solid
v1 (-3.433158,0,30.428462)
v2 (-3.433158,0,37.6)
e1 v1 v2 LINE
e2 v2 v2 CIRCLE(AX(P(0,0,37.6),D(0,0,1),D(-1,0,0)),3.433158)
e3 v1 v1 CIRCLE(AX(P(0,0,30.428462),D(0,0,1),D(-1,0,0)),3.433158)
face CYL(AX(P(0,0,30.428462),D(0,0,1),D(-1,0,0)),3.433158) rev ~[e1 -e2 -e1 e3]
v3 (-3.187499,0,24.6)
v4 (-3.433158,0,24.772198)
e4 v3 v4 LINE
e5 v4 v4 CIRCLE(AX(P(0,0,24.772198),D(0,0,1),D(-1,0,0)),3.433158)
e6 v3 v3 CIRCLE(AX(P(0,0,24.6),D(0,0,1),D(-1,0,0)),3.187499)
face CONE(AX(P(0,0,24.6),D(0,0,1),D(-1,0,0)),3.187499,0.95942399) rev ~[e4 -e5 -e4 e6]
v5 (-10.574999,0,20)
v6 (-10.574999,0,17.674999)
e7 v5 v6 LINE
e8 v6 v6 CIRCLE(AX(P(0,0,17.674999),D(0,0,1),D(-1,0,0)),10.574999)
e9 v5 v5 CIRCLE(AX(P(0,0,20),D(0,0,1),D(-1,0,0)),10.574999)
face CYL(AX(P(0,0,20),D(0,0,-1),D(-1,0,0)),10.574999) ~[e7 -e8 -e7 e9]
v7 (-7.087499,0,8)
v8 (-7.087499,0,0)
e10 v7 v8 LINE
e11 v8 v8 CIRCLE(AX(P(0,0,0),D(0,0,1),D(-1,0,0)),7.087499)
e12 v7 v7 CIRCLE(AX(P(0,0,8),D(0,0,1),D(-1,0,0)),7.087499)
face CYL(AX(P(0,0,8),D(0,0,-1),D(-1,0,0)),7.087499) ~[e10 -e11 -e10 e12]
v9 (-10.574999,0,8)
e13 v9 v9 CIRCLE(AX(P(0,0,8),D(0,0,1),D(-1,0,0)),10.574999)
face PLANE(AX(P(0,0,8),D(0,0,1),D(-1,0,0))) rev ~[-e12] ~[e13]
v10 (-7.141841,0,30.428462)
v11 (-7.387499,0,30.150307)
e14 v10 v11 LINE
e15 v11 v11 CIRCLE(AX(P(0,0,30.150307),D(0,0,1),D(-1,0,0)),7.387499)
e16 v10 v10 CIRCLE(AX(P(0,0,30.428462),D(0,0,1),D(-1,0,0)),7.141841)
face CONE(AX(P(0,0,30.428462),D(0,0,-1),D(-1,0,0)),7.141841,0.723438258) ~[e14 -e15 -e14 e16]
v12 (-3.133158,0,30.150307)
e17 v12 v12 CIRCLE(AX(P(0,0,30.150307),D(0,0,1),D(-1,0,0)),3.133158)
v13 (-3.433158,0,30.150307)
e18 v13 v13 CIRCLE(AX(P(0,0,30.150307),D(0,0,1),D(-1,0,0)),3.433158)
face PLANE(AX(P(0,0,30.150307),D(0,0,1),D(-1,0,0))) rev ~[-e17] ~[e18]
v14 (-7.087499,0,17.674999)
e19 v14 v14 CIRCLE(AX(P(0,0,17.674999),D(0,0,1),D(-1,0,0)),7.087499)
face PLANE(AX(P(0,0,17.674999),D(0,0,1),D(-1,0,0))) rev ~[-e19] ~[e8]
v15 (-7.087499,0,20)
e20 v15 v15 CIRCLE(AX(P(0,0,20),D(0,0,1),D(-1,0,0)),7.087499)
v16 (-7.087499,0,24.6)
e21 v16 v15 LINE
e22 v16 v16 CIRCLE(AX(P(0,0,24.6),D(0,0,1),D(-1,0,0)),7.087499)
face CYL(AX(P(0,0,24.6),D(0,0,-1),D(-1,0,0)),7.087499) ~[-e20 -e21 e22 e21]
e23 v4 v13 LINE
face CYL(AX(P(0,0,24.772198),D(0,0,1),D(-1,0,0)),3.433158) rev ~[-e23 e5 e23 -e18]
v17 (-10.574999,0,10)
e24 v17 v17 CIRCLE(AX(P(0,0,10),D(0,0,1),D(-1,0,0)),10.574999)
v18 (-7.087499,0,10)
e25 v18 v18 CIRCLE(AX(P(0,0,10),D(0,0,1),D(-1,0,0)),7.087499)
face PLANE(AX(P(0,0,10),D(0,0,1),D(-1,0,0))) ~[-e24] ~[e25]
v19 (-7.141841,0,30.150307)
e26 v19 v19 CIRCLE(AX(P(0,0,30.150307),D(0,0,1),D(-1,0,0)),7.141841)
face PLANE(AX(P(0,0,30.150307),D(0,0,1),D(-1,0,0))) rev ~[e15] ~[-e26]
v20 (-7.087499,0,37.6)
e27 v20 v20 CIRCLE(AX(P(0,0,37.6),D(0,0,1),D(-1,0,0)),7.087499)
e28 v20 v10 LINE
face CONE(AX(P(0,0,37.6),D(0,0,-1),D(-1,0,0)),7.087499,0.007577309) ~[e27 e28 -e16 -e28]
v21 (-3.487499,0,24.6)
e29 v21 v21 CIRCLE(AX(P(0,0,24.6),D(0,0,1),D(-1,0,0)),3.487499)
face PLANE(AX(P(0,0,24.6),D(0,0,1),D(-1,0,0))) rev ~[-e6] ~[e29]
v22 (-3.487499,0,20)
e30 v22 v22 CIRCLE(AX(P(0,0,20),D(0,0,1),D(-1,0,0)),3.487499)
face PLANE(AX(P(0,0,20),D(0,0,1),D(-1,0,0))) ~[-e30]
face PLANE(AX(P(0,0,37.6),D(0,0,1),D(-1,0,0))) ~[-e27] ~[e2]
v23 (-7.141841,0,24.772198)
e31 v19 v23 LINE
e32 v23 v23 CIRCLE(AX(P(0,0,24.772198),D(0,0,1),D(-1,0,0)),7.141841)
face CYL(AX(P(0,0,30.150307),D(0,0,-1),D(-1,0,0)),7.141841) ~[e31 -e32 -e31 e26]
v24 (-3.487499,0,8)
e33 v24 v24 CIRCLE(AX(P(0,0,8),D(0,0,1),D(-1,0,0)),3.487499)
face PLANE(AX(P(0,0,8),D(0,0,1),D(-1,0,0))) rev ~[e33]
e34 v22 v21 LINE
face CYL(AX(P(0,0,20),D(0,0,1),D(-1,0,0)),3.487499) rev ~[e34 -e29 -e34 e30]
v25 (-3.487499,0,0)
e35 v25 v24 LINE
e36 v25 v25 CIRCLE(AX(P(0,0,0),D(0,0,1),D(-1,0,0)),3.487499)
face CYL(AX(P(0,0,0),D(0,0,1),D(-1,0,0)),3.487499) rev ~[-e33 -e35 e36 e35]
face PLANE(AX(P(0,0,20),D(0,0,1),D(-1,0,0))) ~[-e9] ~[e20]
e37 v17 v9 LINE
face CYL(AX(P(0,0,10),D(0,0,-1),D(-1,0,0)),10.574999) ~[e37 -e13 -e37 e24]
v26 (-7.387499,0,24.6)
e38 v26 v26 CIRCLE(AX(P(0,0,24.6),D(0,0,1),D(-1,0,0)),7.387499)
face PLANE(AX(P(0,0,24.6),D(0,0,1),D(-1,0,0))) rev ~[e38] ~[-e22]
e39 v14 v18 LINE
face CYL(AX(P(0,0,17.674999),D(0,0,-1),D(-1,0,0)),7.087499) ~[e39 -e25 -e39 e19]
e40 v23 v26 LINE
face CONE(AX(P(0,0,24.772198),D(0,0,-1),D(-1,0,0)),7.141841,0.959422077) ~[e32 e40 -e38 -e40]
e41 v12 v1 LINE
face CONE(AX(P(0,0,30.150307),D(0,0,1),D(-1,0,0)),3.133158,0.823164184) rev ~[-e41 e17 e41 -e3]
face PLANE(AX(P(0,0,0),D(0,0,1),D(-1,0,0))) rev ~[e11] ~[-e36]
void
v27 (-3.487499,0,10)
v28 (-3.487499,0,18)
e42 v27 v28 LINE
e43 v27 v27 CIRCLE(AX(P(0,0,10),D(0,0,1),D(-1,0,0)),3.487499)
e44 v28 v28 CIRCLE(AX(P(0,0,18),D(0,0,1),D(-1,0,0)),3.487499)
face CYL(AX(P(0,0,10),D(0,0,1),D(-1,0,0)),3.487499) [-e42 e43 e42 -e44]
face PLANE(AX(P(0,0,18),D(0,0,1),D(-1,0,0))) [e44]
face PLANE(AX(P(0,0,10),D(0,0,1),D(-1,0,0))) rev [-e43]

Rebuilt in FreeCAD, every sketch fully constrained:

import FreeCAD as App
import Part
import Sketcher

doc = App.newDocument("Part")
body = doc.addObject("PartDesign::Body", "Body")

# Sketch on XZ plane
sketch1 = body.newObject("Sketcher::SketchObject", "Sketch")
sketch1.AttachmentSupport = (doc.getObject("XZ_Plane"), [""])
sketch1.MapMode = "FlatFace"
sketch1.addGeometry([
    Part.LineSegment(App.Vector(-7.09, 8, 0), App.Vector(-7.09, 0, 0)),  # 0
    Part.LineSegment(App.Vector(-7.09, 0, 0), App.Vector(-3.49, 0, 0)),  # 1
    Part.LineSegment(App.Vector(-3.49, 0, 0), App.Vector(-3.49, 8, 0)),  # 2
    Part.LineSegment(App.Vector(-3.49, 8, 0), App.Vector(0, 8, 0)),  # 3
    Part.LineSegment(App.Vector(0, 8, 0), App.Vector(0, 10, 0)),  # 4
    Part.LineSegment(App.Vector(0, 10, 0), App.Vector(-3.49, 10, 0)),  # 5
    Part.LineSegment(App.Vector(-3.49, 10, 0), App.Vector(-3.49, 18, 0)),  # 6
    Part.LineSegment(App.Vector(-3.49, 18, 0), App.Vector(0, 18, 0)),  # 7
    Part.LineSegment(App.Vector(0, 18, 0), App.Vector(0, 20, 0)),  # 8
    Part.LineSegment(App.Vector(0, 20, 0), App.Vector(-3.49, 20, 0)),  # 9
    Part.LineSegment(App.Vector(-3.49, 20, 0), App.Vector(-3.49, 24.6, 0)),  # 10
    Part.LineSegment(App.Vector(-3.49, 24.6, 0), App.Vector(-3.19, 24.6, 0)),  # 11
    Part.LineSegment(App.Vector(-3.19, 24.6, 0), App.Vector(-3.43, 24.77, 0)),  # 12
    Part.LineSegment(App.Vector(-3.43, 24.77, 0), App.Vector(-3.43, 30.15, 0)),  # 13
    Part.LineSegment(App.Vector(-3.43, 30.15, 0), App.Vector(-3.13, 30.15, 0)),  # 14
    Part.LineSegment(App.Vector(-3.13, 30.15, 0), App.Vector(-3.43, 30.43, 0)),  # 15
    Part.LineSegment(App.Vector(-3.43, 30.43, 0), App.Vector(-3.43, 37.6, 0)),  # 16
    Part.LineSegment(App.Vector(-3.43, 37.6, 0), App.Vector(-7.09, 37.6, 0)),  # 17
    Part.LineSegment(App.Vector(-7.09, 37.6, 0), App.Vector(-7.14, 30.43, 0)),  # 18
    Part.LineSegment(App.Vector(-7.14, 30.43, 0), App.Vector(-7.39, 30.15, 0)),  # 19
    Part.LineSegment(App.Vector(-7.39, 30.15, 0), App.Vector(-7.14, 30.15, 0)),  # 20
    Part.LineSegment(App.Vector(-7.14, 30.15, 0), App.Vector(-7.14, 24.77, 0)),  # 21
    Part.LineSegment(App.Vector(-7.14, 24.77, 0), App.Vector(-7.39, 24.6, 0)),  # 22
    Part.LineSegment(App.Vector(-7.39, 24.6, 0), App.Vector(-7.09, 24.6, 0)),  # 23
    Part.LineSegment(App.Vector(-7.09, 24.6, 0), App.Vector(-7.09, 20, 0)),  # 24
    Part.LineSegment(App.Vector(-7.09, 20, 0), App.Vector(-10.57, 20, 0)),  # 25
    Part.LineSegment(App.Vector(-10.57, 20, 0), App.Vector(-10.57, 17.67, 0)),  # 26
    Part.LineSegment(App.Vector(-10.57, 17.67, 0), App.Vector(-7.09, 17.67, 0)),  # 27
    Part.LineSegment(App.Vector(-7.09, 17.67, 0), App.Vector(-7.09, 10, 0)),  # 28
    Part.LineSegment(App.Vector(-7.09, 10, 0), App.Vector(-10.57, 10, 0)),  # 29
    Part.LineSegment(App.Vector(-10.57, 10, 0), App.Vector(-10.57, 8, 0)),  # 30
    Part.LineSegment(App.Vector(-10.57, 8, 0), App.Vector(-7.09, 8, 0)),  # 31
], False)
sketch1.addConstraint([
    Sketcher.Constraint("Coincident", 0, 2, 1, 1),
    Sketcher.Constraint("Coincident", 1, 2, 2, 1),
    Sketcher.Constraint("Coincident", 2, 2, 3, 1),
    Sketcher.Constraint("Coincident", 3, 2, 4, 1),
    Sketcher.Constraint("Coincident", 4, 2, 5, 1),
    Sketcher.Constraint("Coincident", 5, 2, 6, 1),
    Sketcher.Constraint("Coincident", 6, 2, 7, 1),
    Sketcher.Constraint("Coincident", 7, 2, 8, 1),
    Sketcher.Constraint("Coincident", 8, 2, 9, 1),
    Sketcher.Constraint("Coincident", 9, 2, 10, 1),
    Sketcher.Constraint("Coincident", 10, 2, 11, 1),
    Sketcher.Constraint("Coincident", 11, 2, 12, 1),
    Sketcher.Constraint("Coincident", 12, 2, 13, 1),
    Sketcher.Constraint("Coincident", 13, 2, 14, 1),
    Sketcher.Constraint("Coincident", 14, 2, 15, 1),
    Sketcher.Constraint("Coincident", 15, 2, 16, 1),
    Sketcher.Constraint("Coincident", 16, 2, 17, 1),
    Sketcher.Constraint("Coincident", 17, 2, 18, 1),
    Sketcher.Constraint("Coincident", 18, 2, 19, 1),
    Sketcher.Constraint("Coincident", 19, 2, 20, 1),
    Sketcher.Constraint("Coincident", 20, 2, 21, 1),
    Sketcher.Constraint("Coincident", 21, 2, 22, 1),
    Sketcher.Constraint("Coincident", 22, 2, 23, 1),
    Sketcher.Constraint("Coincident", 23, 2, 24, 1),
    Sketcher.Constraint("Coincident", 24, 2, 25, 1),
    Sketcher.Constraint("Coincident", 25, 2, 26, 1),
    Sketcher.Constraint("Coincident", 26, 2, 27, 1),
    Sketcher.Constraint("Coincident", 27, 2, 28, 1),
    Sketcher.Constraint("Coincident", 28, 2, 29, 1),
    Sketcher.Constraint("Coincident", 29, 2, 30, 1),
    Sketcher.Constraint("Coincident", 30, 2, 31, 1),
    Sketcher.Constraint("Coincident", 31, 2, 0, 1),
    Sketcher.Constraint("Vertical", 0),
    Sketcher.Constraint("Horizontal", 1),
    Sketcher.Constraint("Vertical", 2),
    Sketcher.Constraint("Horizontal", 3),
    Sketcher.Constraint("Vertical", 4),
    Sketcher.Constraint("Horizontal", 5),
    Sketcher.Constraint("Vertical", 6),
    Sketcher.Constraint("Horizontal", 7),
    Sketcher.Constraint("Vertical", 8),
    Sketcher.Constraint("Horizontal", 9),
    Sketcher.Constraint("Vertical", 10),
    Sketcher.Constraint("Horizontal", 11),
    Sketcher.Constraint("Vertical", 13),
    Sketcher.Constraint("Horizontal", 14),
    Sketcher.Constraint("Vertical", 16),
    Sketcher.Constraint("Horizontal", 17),
    Sketcher.Constraint("Horizontal", 20),
    Sketcher.Constraint("Vertical", 21),
    Sketcher.Constraint("Horizontal", 23),
    Sketcher.Constraint("Vertical", 24),
    Sketcher.Constraint("Horizontal", 25),
    Sketcher.Constraint("Vertical", 26),
    Sketcher.Constraint("Horizontal", 27),
    Sketcher.Constraint("Vertical", 28),
    Sketcher.Constraint("Horizontal", 29),
    Sketcher.Constraint("Vertical", 30),
    Sketcher.Constraint("Horizontal", 31),
    Sketcher.Constraint("PointOnObject", 0, 2, -1),
    Sketcher.Constraint("PointOnObject", 3, 2, -2),
    Sketcher.Constraint("PointOnObject", 7, 2, -2),
    Sketcher.Constraint("Horizontal", 15, 2, 18, 2),
    Sketcher.Constraint("Horizontal", 14, 2, 19, 2),
    Sketcher.Constraint("Horizontal", 12, 2, 21, 2),
    Sketcher.Constraint("Horizontal", 11, 2, 22, 2),
    Sketcher.Constraint("Horizontal", 9, 2, 24, 2),
    Sketcher.Constraint("Horizontal", 5, 2, 28, 2),
    Sketcher.Constraint("Horizontal", 3, 2, 30, 2),
    Sketcher.Constraint("Vertical", 2, 2, 5, 2),
    Sketcher.Constraint("Vertical", 6, 2, 9, 2),
    Sketcher.Constraint("Vertical", 13, 2, 15, 2),
    Sketcher.Constraint("Vertical", 0, 2, 17, 2),
    Sketcher.Constraint("Vertical", 18, 2, 20, 2),
    Sketcher.Constraint("Vertical", 19, 2, 22, 2),
    Sketcher.Constraint("Vertical", 17, 2, 23, 2),
    Sketcher.Constraint("Vertical", 24, 2, 27, 2),
    Sketcher.Constraint("Vertical", 26, 2, 29, 2),
    Sketcher.Constraint("Equal", 11, 14),
    Sketcher.Constraint("Equal", 14, 23),
    Sketcher.Constraint("Equal", 9, 25),
    Sketcher.Constraint("Equal", 2, 6),
    Sketcher.Constraint("Equal", 4, 8),
    Sketcher.Constraint("Equal", 12, 22),
    Sketcher.Constraint("DistanceY", 0, 2, 0, 1, 8.0),
    Sketcher.Constraint("DistanceY", 4, 1, 4, 2, 2.0),
    Sketcher.Constraint("DistanceX", 1, 1, 1, 2, 3.6),
    Sketcher.Constraint("DistanceX", 11, 1, 11, 2, 0.3),
    Sketcher.Constraint("DistanceY", 10, 1, 10, 2, 4.6),
    Sketcher.Constraint("DistanceY", 10, 2, 16, 2, 13.0),
    Sketcher.Constraint("Distance", 12, 0.300001),
    Sketcher.Constraint("DistanceY", 26, 2, 26, 1, 2.325001),
    Sketcher.Constraint("DistanceX", 3, 1, 3, 2, 3.487499),
    Sketcher.Constraint("DistanceX", 17, 2, 17, 1, 3.654341),
    Sketcher.Constraint("DistanceY", 13, 1, 13, 2, 5.378109),
    Sketcher.Constraint("DistanceY", 16, 1, 16, 2, 7.171538),
])
revolution = body.newObject("PartDesign::Revolution", "Revolution")
revolution.Profile = sketch1
revolution.ReferenceAxis = (sketch1, ["V_Axis"])
revolution.Angle = 360

doc.recompute()
